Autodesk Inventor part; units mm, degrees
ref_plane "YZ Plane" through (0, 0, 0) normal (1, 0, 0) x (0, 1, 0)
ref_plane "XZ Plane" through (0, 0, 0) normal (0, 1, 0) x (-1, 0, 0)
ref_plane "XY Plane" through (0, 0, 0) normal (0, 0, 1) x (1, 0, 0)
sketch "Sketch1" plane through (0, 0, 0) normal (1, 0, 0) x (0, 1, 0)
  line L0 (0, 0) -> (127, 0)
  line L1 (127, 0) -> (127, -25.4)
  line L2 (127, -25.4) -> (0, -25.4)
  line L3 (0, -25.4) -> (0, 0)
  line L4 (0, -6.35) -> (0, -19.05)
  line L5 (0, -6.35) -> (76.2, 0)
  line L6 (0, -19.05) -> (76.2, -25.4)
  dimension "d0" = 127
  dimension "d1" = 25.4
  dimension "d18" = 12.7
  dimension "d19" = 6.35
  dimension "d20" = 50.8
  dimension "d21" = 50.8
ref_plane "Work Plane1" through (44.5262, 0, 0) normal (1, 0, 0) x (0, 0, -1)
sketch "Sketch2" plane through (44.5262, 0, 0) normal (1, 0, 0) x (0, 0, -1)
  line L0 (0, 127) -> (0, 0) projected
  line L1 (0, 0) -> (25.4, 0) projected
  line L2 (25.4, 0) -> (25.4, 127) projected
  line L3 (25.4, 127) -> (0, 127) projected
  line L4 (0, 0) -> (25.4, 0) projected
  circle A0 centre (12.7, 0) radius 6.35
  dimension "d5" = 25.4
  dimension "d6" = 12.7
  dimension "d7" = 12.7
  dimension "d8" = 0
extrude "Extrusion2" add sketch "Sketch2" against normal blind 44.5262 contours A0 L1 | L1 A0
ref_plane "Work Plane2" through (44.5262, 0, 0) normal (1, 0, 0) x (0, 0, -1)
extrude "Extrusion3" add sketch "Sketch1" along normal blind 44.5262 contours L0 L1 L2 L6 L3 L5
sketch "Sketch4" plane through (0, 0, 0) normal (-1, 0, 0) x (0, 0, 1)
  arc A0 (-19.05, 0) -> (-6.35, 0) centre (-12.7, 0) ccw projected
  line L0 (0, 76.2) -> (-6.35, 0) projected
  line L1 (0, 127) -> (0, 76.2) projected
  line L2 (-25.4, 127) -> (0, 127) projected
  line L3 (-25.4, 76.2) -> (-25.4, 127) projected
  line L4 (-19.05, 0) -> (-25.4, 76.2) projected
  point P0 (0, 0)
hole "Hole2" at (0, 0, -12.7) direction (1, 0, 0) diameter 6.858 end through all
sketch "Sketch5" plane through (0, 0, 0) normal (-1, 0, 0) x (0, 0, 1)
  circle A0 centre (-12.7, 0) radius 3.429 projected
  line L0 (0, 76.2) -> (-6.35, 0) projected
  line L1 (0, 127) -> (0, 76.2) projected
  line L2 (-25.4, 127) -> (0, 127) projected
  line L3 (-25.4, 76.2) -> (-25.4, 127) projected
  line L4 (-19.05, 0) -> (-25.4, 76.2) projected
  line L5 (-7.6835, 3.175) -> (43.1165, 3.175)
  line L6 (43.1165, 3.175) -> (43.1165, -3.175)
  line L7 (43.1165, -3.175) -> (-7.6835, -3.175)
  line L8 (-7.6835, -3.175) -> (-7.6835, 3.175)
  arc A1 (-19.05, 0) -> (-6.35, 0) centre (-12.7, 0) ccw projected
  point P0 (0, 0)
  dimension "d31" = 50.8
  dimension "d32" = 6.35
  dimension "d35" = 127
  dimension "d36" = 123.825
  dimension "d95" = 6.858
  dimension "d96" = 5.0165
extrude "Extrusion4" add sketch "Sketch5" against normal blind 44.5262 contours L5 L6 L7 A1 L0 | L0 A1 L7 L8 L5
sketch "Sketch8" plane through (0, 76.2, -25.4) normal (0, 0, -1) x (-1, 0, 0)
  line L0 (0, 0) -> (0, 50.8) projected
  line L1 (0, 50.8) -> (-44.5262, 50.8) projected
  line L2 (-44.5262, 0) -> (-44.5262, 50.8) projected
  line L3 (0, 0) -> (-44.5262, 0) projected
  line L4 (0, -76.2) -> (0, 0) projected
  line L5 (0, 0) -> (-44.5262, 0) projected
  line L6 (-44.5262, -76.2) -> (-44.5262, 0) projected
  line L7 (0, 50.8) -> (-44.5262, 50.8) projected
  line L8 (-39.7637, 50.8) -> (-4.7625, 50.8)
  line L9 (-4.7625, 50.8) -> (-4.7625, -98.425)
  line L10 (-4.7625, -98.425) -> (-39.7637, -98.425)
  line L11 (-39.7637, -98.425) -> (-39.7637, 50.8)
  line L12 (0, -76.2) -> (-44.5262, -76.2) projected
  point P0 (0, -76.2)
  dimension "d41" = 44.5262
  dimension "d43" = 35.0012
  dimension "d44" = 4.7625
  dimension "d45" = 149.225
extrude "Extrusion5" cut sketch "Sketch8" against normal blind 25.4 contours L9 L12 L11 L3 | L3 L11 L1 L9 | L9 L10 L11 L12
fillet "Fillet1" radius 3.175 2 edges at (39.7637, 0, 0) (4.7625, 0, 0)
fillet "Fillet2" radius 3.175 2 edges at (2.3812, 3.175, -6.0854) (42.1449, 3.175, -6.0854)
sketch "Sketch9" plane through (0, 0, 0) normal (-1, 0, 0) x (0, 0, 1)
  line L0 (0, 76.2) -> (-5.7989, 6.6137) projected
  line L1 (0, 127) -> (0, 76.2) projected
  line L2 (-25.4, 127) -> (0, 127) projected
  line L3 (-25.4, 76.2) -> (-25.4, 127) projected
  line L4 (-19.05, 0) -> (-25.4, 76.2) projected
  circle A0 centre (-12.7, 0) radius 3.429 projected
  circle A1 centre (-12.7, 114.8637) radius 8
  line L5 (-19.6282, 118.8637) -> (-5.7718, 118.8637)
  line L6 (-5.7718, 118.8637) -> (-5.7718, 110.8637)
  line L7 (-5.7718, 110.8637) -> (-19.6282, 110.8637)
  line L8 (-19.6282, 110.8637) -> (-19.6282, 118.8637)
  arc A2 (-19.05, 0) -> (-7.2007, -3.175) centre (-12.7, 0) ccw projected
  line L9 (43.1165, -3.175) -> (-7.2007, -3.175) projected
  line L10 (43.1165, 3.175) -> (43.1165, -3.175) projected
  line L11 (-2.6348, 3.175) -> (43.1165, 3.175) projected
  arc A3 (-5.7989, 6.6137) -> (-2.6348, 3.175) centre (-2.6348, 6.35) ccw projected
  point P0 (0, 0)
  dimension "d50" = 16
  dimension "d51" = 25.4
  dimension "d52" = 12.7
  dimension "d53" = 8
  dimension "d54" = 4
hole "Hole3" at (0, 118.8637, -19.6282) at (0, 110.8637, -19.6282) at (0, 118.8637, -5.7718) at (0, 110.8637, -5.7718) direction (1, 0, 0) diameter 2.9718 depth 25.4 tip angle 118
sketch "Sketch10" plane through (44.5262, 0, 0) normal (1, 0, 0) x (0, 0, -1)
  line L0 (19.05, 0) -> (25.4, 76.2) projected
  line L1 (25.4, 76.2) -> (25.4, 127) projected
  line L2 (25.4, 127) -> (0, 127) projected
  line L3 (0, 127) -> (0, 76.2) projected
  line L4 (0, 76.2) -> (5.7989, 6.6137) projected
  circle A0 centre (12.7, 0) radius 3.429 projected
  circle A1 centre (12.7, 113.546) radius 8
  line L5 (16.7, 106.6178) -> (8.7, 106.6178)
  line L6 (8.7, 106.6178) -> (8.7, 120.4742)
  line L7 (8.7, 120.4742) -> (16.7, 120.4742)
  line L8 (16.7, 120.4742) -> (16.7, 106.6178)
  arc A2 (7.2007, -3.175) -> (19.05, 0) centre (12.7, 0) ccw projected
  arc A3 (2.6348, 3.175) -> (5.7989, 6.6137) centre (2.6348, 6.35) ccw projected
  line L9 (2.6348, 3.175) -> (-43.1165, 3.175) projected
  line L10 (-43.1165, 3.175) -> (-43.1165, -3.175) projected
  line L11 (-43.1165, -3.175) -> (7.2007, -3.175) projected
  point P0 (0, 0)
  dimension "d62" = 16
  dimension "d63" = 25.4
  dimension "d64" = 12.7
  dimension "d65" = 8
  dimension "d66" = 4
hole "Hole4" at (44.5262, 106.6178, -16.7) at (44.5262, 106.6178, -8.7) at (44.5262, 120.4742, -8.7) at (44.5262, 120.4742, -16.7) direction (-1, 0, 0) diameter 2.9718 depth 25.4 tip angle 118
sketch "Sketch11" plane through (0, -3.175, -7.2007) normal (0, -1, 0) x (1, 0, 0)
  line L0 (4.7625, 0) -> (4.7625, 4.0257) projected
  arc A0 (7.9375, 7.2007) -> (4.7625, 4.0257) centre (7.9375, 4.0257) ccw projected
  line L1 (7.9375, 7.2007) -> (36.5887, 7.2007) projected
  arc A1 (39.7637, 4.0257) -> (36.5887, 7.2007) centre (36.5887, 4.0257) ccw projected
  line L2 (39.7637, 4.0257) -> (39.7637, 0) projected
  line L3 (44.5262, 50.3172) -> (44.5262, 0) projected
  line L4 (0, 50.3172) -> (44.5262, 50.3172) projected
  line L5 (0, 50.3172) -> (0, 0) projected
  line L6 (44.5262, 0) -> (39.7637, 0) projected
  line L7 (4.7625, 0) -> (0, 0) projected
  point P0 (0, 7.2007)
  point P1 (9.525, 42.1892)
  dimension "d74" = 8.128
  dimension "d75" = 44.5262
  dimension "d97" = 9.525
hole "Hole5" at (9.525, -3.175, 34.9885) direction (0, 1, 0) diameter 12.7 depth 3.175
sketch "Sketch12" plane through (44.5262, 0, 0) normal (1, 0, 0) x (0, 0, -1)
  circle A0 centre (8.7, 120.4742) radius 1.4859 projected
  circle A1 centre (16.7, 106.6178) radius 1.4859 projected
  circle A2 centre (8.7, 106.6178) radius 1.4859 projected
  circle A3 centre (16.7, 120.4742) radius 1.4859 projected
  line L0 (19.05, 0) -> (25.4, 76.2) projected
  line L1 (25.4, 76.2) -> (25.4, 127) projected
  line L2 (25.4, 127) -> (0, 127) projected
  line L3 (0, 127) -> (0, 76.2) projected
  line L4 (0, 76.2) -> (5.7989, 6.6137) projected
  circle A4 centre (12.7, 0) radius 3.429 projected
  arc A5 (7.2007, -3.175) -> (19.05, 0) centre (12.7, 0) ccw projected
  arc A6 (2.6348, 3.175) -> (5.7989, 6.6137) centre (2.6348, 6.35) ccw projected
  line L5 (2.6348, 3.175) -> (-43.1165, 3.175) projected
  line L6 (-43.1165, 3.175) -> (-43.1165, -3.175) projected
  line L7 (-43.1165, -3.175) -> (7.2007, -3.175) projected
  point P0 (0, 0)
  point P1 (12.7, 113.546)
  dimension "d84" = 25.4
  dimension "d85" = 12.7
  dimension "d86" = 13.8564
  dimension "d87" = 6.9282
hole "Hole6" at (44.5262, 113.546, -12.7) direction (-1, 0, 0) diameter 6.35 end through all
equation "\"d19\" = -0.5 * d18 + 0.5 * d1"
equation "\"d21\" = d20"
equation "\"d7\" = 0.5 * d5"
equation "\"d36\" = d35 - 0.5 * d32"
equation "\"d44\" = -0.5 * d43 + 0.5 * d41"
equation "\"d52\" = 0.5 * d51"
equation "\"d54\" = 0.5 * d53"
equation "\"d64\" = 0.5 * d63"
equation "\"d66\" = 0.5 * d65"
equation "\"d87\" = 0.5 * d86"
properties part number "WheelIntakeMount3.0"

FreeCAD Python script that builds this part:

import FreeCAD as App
import Part
import Sketcher
Q = App.Units.Quantity


def edges_at(feature, points):
    """Names of the edges that pass closest to the given points."""
    edges = feature.Shape.Edges
    near = lambda p: min(range(len(edges)), key=lambda i: edges[i].distToShape(Part.Vertex(*p))[0])
    return sorted({f"Edge{near(p) + 1}" for p in points})


def add_polygon(sketch, points):
    """Adds a closed chain of lines whose ends are joined by coincident constraints."""
    first, n = sketch.GeometryCount, len(points)
    for a, b in zip(points, points[1:] + points[:1]):
        sketch.addGeometry(Part.LineSegment(App.Vector(*a, 0), App.Vector(*b, 0)), False)
    for i in range(n):
        sketch.addConstraint(Sketcher.Constraint("Coincident", first + i, 2, first + (i + 1) % n, 1))

doc = App.newDocument("Part")
params = doc.addObject("Spreadsheet::Sheet", "Params")
for row, (alias, value) in enumerate([
    ("sketch1_diameter", "0.5 in"),
    ("pad1_length", "1.753 in"),
    ("sketch2_width", "2 in"),
    ("sketch2_height", "1 in"),
    ("sketch2_height2", "0.5 in"),
    ("pad2_length", "1.753 in"),
    ("sketch3_diameter", "0.27 in"),
    ("hole_diameter", "0.27 in"),
    ("sketch4_height", "2 in"),
    ("sketch4_width", "0.25 in"),
    ("pad3_length", "1.753 in"),
    ("sketch5_width", "1.378 in"),
    ("sketch5_height", "5.875 in"),
    ("pocket1_length", "1 in"),
    ("fillet_radius", "0.125 in"),
    ("fillet2_radius", "0.125 in"),
    ("sketch6_diameter", "0.117 in"),
    ("hole2_diameter", "0.117 in"),
    ("hole2_depth", "1 in"),
    ("sketch7_diameter", "0.117 in"),
    ("hole3_diameter", "0.117 in"),
    ("hole3_depth", "1 in"),
    ("sketch8_diameter", "0.5 in"),
    ("hole4_diameter", "0.5 in"),
    ("hole4_depth", "0.125 in"),
    ("sketch9_diameter", "0.25 in"),
    ("hole5_diameter", "0.25 in"),
], start=1):
    params.set(f"A{row}", alias)
    params.set(f"B{row}", "=" + value)
    params.setAlias(f"B{row}", alias)

body = doc.addObject("PartDesign::Body", "Body")

# Sketch on YZ plane
sketch1 = body.newObject("Sketcher::SketchObject", "Sketch")
sketch1.AttachmentSupport = (doc.getObject("YZ_Plane"), [""])
sketch1.MapMode = "FlatFace"
sketch1.AttachmentOffset = App.Placement(App.Vector(0, 0, 1.753 * 25.4), App.Rotation())
sketch1.addGeometry(Part.Circle(App.Vector(0, -13, 0), App.Vector(0, 0, 1), 6), False)
sketch1.addConstraint(Sketcher.Constraint("PointOnObject", 0, 3, -2))
sketch1.addConstraint(Sketcher.Constraint("Diameter", 0, Q("0.5 in")))
sketch1.addConstraint(Sketcher.Constraint("DistanceY", 0, 3, -1, 1, Q("0.5 in")))
sketch1.setExpression("Constraints[1]", "Params.sketch1_diameter")
pad1 = body.newObject("PartDesign::Pad", "Pad")
pad1.Profile = sketch1
pad1.setExpression("Length", "Params.pad1_length")
pad1.Reversed = True

# Sketch on YZ plane
sketch2 = body.newObject("Sketcher::SketchObject", "Sketch001")
sketch2.AttachmentSupport = (doc.getObject("YZ_Plane"), [""])
sketch2.MapMode = "FlatFace"
add_polygon(sketch2, [(127, 0), (76, 0), (0, -6), (0, -19), (76, -25), (127, -25)])  # lines 0-5
sketch2.addConstraint(Sketcher.Constraint("Horizontal", 0))
sketch2.addConstraint(Sketcher.Constraint("Vertical", 2))
sketch2.addConstraint(Sketcher.Constraint("Horizontal", 4))
sketch2.addConstraint(Sketcher.Constraint("Vertical", 5))
sketch2.addConstraint(Sketcher.Constraint("PointOnObject", 0, 2, -1))
sketch2.addConstraint(Sketcher.Constraint("PointOnObject", 1, 2, -2))
sketch2.addConstraint(Sketcher.Constraint("Vertical", 0, 2, 3, 2))
sketch2.addConstraint(Sketcher.Constraint("Equal", 1, 3))
sketch2.addConstraint(Sketcher.Constraint("DistanceX", 0, 2, 0, 1, Q("2 in")))
sketch2.addConstraint(Sketcher.Constraint("DistanceY", 5, 1, 5, 2, Q("1 in")))
sketch2.addConstraint(Sketcher.Constraint("DistanceY", 2, 2, 2, 1, Q("0.5 in")))
sketch2.addConstraint(Sketcher.Constraint("DistanceX", -1, 1, 4, 2, Q("5 in")))
sketch2.setExpression("Constraints[14]", "Params.sketch2_width")
sketch2.setExpression("Constraints[15]", "Params.sketch2_height")
sketch2.setExpression("Constraints[16]", "Params.sketch2_height2")
pad2 = body.newObject("PartDesign::Pad", "Pad001")
pad2.Profile = sketch2
pad2.setExpression("Length", "Params.pad2_length")

# Sketch on YZ plane
sketch3 = body.newObject("Sketcher::SketchObject", "Sketch002")
sketch3.AttachmentSupport = (doc.getObject("YZ_Plane"), [""])
sketch3.MapMode = "FlatFace"
sketch3.addGeometry(Part.Circle(App.Vector(0, -12.7, 0), App.Vector(0, 0, 1), 3.4), False)
sketch3.addConstraint(Sketcher.Constraint("PointOnObject", 0, 3, -2))
sketch3.addConstraint(Sketcher.Constraint("Diameter", 0, Q("0.27 in")))
sketch3.addConstraint(Sketcher.Constraint("DistanceY", 0, 3, -1, 1, Q("0.5 in")))
sketch3.setExpression("Constraints[1]", "Params.sketch3_diameter")
doc.recompute()
hole = body.newObject("PartDesign::Hole", "Hole")
hole.Profile = sketch3
hole.ThreadType = "None"
hole.setExpression("Diameter", "Params.hole_diameter")
hole.DepthType = "ThroughAll"
hole.Reversed = True

# Sketch on YZ plane
sketch4 = body.newObject("Sketcher::SketchObject", "Sketch003")
sketch4.AttachmentSupport = (doc.getObject("YZ_Plane"), [""])
sketch4.MapMode = "FlatFace"
add_polygon(sketch4, [(3, 43), (3, -8), (-3, -8), (-3, 43)])  # lines 0-3
sketch4.addConstraint(Sketcher.Constraint("Vertical", 0))
sketch4.addConstraint(Sketcher.Constraint("Horizontal", 1))
sketch4.addConstraint(Sketcher.Constraint("Vertical", 2))
sketch4.addConstraint(Sketcher.Constraint("Horizontal", 3))
sketch4.addConstraint(Sketcher.Constraint("DistanceY", 0, 2, 0, 1, Q("2 in")))
sketch4.addConstraint(Sketcher.Constraint("DistanceX", 1, 2, 1, 1, Q("0.25 in")))
sketch4.addConstraint(Sketcher.Constraint("DistanceX", -1, 1, 0, 2, Q("0.125 in")))
sketch4.addConstraint(Sketcher.Constraint("DistanceY", 0, 2, -1, 1, Q("0.3025 in")))
sketch4.setExpression("Constraints[8]", "Params.sketch4_height")
sketch4.setExpression("Constraints[9]", "Params.sketch4_width")
pad3 = body.newObject("PartDesign::Pad", "Pad002")
pad3.Profile = sketch4
pad3.setExpression("Length", "Params.pad3_length")

# Sketch on XY plane
sketch5 = body.newObject("Sketcher::SketchObject", "Sketch004")
sketch5.AttachmentSupport = (doc.getObject("XY_Plane"), [""])
sketch5.MapMode = "FlatFace"
sketch5.AttachmentOffset = App.Placement(App.Vector(0, 0, -1 * 25.4), App.Rotation())
add_polygon(sketch5, [(5, 127), (40, 127), (40, -22), (5, -22)])  # lines 0-3
sketch5.addConstraint(Sketcher.Constraint("Horizontal", 0))
sketch5.addConstraint(Sketcher.Constraint("Vertical", 1))
sketch5.addConstraint(Sketcher.Constraint("Horizontal", 2))
sketch5.addConstraint(Sketcher.Constraint("Vertical", 3))
sketch5.addConstraint(Sketcher.Constraint("DistanceX", 0, 1, 0, 2, Q("1.378 in")))
sketch5.addConstraint(Sketcher.Constraint("DistanceY", 1, 2, 1, 1, Q("5.875 in")))
sketch5.addConstraint(Sketcher.Constraint("DistanceX", -1, 1, 2, 2, Q("0.1875 in")))
sketch5.addConstraint(Sketcher.Constraint("DistanceY", -1, 1, 0, 2, Q("5 in")))
sketch5.setExpression("Constraints[8]", "Params.sketch5_width")
sketch5.setExpression("Constraints[9]", "Params.sketch5_height")
pocket1 = body.newObject("PartDesign::Pocket", "Pocket")
pocket1.Profile = sketch5
pocket1.setExpression("Length", "Params.pocket1_length")
pocket1.Reversed = True
doc.recompute()

fillet = body.newObject("PartDesign::Fillet", "Fillet")
fillet.Base = (pocket1, edges_at(pocket1, [(39.764, 0, 0), (4.763, 0, 0)]))
fillet.setExpression("Radius", "Params.fillet_radius")
doc.recompute()

fillet2 = body.newObject("PartDesign::Fillet", "Fillet001")
fillet2.Base = (fillet, edges_at(fillet, [(2.381, 3.175, -6.085), (42.145, 3.175, -6.085)]))
fillet2.setExpression("Radius", "Params.fillet2_radius")

# Sketch on YZ plane
sketch6 = body.newObject("Sketcher::SketchObject", "Sketch005")
sketch6.AttachmentSupport = (doc.getObject("YZ_Plane"), [""])
sketch6.MapMode = "FlatFace"
sketch6.addGeometry(Part.Circle(App.Vector(118.9, -19.6, 0), App.Vector(0, 0, 1), 1.5), False)
sketch6.addGeometry(Part.Circle(App.Vector(110.9, -19.6, 0), App.Vector(0, 0, 1), 1.5), False)
sketch6.addGeometry(Part.Circle(App.Vector(118.9, -5.8, 0), App.Vector(0, 0, 1), 1.5), False)
sketch6.addGeometry(Part.Circle(App.Vector(110.9, -5.8, 0), App.Vector(0, 0, 1), 1.5), False)
sketch6.addConstraint(Sketcher.Constraint("Equal", 0, 1))
sketch6.addConstraint(Sketcher.Constraint("Equal", 1, 2))
sketch6.addConstraint(Sketcher.Constraint("Equal", 2, 3))
sketch6.addConstraint(Sketcher.Constraint("Horizontal", 0, 3, 1, 3))
sketch6.addConstraint(Sketcher.Constraint("Horizontal", 2, 3, 3, 3))
sketch6.addConstraint(Sketcher.Constraint("Vertical", 0, 3, 2, 3))
sketch6.addConstraint(Sketcher.Constraint("Vertical", 1, 3, 3, 3))
sketch6.addConstraint(Sketcher.Constraint("Diameter", 0, Q("0.117 in")))
sketch6.addConstraint(Sketcher.Constraint("DistanceX", -1, 1, 0, 3, Q("118.8637 mm")))
sketch6.addConstraint(Sketcher.Constraint("DistanceY", 0, 3, -1, 1, Q("19.6282 mm")))
sketch6.addConstraint(Sketcher.Constraint("DistanceX", -1, 1, 1, 3, Q("110.8637 mm")))
sketch6.addConstraint(Sketcher.Constraint("DistanceY", 2, 3, -1, 1, Q("5.7718 mm")))
sketch6.setExpression("Constraints[7]", "Params.sketch6_diameter")
doc.recompute()
hole2 = body.newObject("PartDesign::Hole", "Hole001")
hole2.Profile = sketch6
hole2.ThreadType = "None"
hole2.setExpression("Diameter", "Params.hole2_diameter")
hole2.DepthType = "Dimension"
hole2.setExpression("Depth", "Params.hole2_depth")
hole2.DrillPoint = "Angled"
hole2.DrillPointAngle = 118
hole2.Reversed = True

# Sketch on YZ plane
sketch7 = body.newObject("Sketcher::SketchObject", "Sketch006")
sketch7.AttachmentSupport = (doc.getObject("YZ_Plane"), [""])
sketch7.MapMode = "FlatFace"
sketch7.AttachmentOffset = App.Placement(App.Vector(0, 0, 1.753 * 25.4), App.Rotation())
sketch7.addGeometry(Part.Circle(App.Vector(106.6, -16.7, 0), App.Vector(0, 0, 1), 1.5), False)
sketch7.addGeometry(Part.Circle(App.Vector(106.6, -8.7, 0), App.Vector(0, 0, 1), 1.5), False)
sketch7.addGeometry(Part.Circle(App.Vector(120.5, -8.7, 0), App.Vector(0, 0, 1), 1.5), False)
sketch7.addGeometry(Part.Circle(App.Vector(120.5, -16.7, 0), App.Vector(0, 0, 1), 1.5), False)
sketch7.addConstraint(Sketcher.Constraint("Equal", 0, 1))
sketch7.addConstraint(Sketcher.Constraint("Equal", 1, 2))
sketch7.addConstraint(Sketcher.Constraint("Equal", 2, 3))
sketch7.addConstraint(Sketcher.Constraint("Horizontal", 1, 3, 2, 3))
sketch7.addConstraint(Sketcher.Constraint("Horizontal", 0, 3, 3, 3))
sketch7.addConstraint(Sketcher.Constraint("Vertical", 0, 3, 1, 3))
sketch7.addConstraint(Sketcher.Constraint("Vertical", 2, 3, 3, 3))
sketch7.addConstraint(Sketcher.Constraint("Diameter", 0, Q("0.117 in")))
sketch7.addConstraint(Sketcher.Constraint("DistanceX", -1, 1, 0, 3, Q("106.6178 mm")))
sketch7.addConstraint(Sketcher.Constraint("DistanceY", 0, 3, -1, 1, Q("16.7 mm")))
sketch7.addConstraint(Sketcher.Constraint("DistanceY", 1, 3, -1, 1, Q("8.7 mm")))
sketch7.addConstraint(Sketcher.Constraint("DistanceX", -1, 1, 2, 3, Q("120.4742 mm")))
sketch7.setExpression("Constraints[7]", "Params.sketch7_diameter")
doc.recompute()
hole3 = body.newObject("PartDesign::Hole", "Hole002")
hole3.Profile = sketch7
hole3.ThreadType = "None"
hole3.setExpression("Diameter", "Params.hole3_diameter")
hole3.DepthType = "Dimension"
hole3.setExpression("Depth", "Params.hole3_depth")
hole3.DrillPoint = "Angled"
hole3.DrillPointAngle = 118

# Sketch on XZ plane
sketch8 = body.newObject("Sketcher::SketchObject", "Sketch007")
sketch8.AttachmentSupport = (doc.getObject("XZ_Plane"), [""])
sketch8.MapMode = "FlatFace"
sketch8.AttachmentOffset = App.Placement(App.Vector(0, 0, 0.125 * 25.4), App.Rotation())
sketch8.addGeometry(Part.Circle(App.Vector(10, 35, 0), App.Vector(0, 0, 1), 6), False)
sketch8.addConstraint(Sketcher.Constraint("Diameter", 0, Q("0.5 in")))
sketch8.addConstraint(Sketcher.Constraint("DistanceX", -1, 1, 0, 3, Q("0.375 in")))
sketch8.addConstraint(Sketcher.Constraint("DistanceY", -1, 1, 0, 3, Q("1.3775 in")))
sketch8.setExpression("Constraints[0]", "Params.sketch8_diameter")
doc.recompute()
hole4 = body.newObject("PartDesign::Hole", "Hole003")
hole4.Profile = sketch8
hole4.ThreadType = "None"
hole4.setExpression("Diameter", "Params.hole4_diameter")
hole4.DepthType = "Dimension"
hole4.setExpression("Depth", "Params.hole4_depth")
hole4.DrillPoint = "Flat"

# Sketch on YZ plane
sketch9 = body.newObject("Sketcher::SketchObject", "Sketch008")
sketch9.AttachmentSupport = (doc.getObject("YZ_Plane"), [""])
sketch9.MapMode = "FlatFace"
sketch9.AttachmentOffset = App.Placement(App.Vector(0, 0, 1.753 * 25.4), App.Rotation())
sketch9.addGeometry(Part.Circle(App.Vector(113.5, -12.7, 0), App.Vector(0, 0, 1), 3.2), False)
sketch9.addConstraint(Sketcher.Constraint("Diameter", 0, Q("0.25 in")))
sketch9.addConstraint(Sketcher.Constraint("DistanceY", 0, 3, -1, 1, Q("0.5 in")))
sketch9.addConstraint(Sketcher.Constraint("DistanceX", -1, 1, 0, 3, Q("113.546 mm")))
sketch9.setExpression("Constraints[0]", "Params.sketch9_diameter")
doc.recompute()
hole5 = body.newObject("PartDesign::Hole", "Hole004")
hole5.Profile = sketch9
hole5.ThreadType = "None"
hole5.setExpression("Diameter", "Params.hole5_diameter")
hole5.DepthType = "ThroughAll"

doc.recompute()
